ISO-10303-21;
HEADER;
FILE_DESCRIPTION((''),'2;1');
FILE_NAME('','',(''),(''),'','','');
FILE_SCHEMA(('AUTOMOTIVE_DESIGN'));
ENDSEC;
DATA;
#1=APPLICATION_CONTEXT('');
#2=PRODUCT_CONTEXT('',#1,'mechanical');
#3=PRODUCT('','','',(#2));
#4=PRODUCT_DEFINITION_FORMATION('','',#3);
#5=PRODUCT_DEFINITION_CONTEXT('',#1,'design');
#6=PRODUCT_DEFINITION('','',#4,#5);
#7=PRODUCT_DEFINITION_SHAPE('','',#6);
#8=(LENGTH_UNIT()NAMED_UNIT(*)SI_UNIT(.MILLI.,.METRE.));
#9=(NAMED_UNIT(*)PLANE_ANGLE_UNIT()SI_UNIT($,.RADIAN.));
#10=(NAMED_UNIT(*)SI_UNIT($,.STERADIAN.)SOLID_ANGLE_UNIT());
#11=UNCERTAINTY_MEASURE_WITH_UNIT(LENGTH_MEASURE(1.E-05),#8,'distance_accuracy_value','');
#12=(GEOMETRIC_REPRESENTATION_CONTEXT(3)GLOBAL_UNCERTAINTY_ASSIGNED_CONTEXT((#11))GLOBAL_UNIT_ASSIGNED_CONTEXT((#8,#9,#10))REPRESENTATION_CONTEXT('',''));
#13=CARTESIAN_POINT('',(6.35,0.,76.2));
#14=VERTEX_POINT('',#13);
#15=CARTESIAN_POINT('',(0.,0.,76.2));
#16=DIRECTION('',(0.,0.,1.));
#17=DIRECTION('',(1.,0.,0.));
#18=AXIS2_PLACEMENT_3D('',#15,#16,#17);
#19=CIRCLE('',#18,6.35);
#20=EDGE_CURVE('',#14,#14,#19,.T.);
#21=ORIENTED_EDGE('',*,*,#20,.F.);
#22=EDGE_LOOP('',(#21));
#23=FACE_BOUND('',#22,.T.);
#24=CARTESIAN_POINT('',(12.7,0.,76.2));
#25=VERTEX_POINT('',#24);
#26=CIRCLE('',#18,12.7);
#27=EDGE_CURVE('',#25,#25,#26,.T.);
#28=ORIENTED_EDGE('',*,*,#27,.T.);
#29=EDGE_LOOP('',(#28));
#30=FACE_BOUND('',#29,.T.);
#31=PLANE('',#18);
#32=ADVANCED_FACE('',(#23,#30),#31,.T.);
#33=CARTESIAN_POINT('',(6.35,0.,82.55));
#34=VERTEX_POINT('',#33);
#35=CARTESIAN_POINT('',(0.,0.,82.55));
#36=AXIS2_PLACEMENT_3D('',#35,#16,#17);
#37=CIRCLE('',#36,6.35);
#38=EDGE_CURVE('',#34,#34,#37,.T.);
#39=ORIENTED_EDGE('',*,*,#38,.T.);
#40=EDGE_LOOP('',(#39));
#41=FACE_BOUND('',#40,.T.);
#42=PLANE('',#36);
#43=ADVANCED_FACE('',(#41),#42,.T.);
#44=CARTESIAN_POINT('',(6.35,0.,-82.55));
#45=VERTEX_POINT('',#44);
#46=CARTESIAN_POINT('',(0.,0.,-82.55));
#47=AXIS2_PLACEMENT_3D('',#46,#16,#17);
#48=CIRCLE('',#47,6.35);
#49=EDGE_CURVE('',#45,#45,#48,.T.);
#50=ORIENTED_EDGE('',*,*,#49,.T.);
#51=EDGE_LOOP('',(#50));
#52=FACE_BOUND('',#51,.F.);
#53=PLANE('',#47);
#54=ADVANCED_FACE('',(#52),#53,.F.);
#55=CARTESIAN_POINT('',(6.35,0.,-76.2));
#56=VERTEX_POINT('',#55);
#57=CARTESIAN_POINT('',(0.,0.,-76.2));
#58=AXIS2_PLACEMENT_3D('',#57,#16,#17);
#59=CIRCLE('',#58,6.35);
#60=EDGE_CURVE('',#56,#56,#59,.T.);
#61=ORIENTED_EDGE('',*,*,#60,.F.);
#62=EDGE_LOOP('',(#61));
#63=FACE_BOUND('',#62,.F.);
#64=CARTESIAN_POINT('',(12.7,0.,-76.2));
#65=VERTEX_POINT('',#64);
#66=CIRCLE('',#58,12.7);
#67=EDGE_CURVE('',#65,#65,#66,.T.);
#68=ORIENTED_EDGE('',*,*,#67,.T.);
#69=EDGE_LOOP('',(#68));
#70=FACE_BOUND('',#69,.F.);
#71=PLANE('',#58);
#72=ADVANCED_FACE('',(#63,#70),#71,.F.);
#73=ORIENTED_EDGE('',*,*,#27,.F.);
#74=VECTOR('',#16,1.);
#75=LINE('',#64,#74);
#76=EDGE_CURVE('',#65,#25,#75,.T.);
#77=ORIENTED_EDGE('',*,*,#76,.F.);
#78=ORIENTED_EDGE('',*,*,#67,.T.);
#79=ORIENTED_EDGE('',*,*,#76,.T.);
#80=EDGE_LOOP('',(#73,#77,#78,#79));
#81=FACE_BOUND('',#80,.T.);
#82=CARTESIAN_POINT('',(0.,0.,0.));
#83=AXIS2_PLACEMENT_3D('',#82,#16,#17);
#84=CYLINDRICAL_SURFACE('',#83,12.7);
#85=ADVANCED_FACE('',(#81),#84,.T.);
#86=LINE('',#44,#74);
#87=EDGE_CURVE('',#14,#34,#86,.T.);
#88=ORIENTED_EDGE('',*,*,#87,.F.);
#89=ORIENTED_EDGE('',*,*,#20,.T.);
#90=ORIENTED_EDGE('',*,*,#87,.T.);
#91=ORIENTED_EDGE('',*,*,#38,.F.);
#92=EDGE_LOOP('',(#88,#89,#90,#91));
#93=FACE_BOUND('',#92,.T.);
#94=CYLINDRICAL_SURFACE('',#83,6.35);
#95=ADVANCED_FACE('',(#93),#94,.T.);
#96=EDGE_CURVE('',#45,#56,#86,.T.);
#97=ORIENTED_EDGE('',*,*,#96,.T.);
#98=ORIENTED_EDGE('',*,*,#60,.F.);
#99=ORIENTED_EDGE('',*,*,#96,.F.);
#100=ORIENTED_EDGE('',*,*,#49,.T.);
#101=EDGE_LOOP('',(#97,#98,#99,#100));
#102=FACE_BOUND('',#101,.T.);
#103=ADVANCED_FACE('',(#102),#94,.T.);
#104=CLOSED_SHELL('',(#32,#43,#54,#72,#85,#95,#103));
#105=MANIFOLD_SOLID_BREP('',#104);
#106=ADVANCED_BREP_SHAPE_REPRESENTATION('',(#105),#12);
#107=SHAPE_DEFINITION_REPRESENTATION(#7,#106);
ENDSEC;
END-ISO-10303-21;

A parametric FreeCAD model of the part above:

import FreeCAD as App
import Part
import Sketcher

V = App.Vector
Q = App.Units.Quantity

doc = App.newDocument("Part")
body = doc.addObject("PartDesign::Body", "Body")

sketch1 = doc.addObject("Sketcher::SketchObject", "Sketch")
body.addObject(sketch1)
sketch1.AttachmentSupport = (doc.XY_Plane, [""])
sketch1.MapMode = "FlatFace"
sketch1.addGeometry(Part.Circle(V(0, 0, 0), V(0, 0, 1), 13), False)
sketch1.addConstraint(Sketcher.Constraint("Coincident", 0, 3, -1, 1))
sketch1.addConstraint(Sketcher.Constraint("Diameter", 0, Q("1 in")))
pad1 = doc.addObject("PartDesign::Pad", "Pad")
body.addObject(pad1)
pad1.Profile = sketch1
pad1.Length = Q("6 in")
pad1.Midplane = True

sketch2 = doc.addObject("Sketcher::SketchObject", "Sketch001")
body.addObject(sketch2)
sketch2.AttachmentSupport = (doc.XY_Plane, [""])
sketch2.MapMode = "FlatFace"
sketch2.addGeometry(Part.Circle(V(0, 0, 0), V(0, 0, 1), 6), False)
sketch2.addConstraint(Sketcher.Constraint("Coincident", 0, 3, -1, 1))
sketch2.addConstraint(Sketcher.Constraint("Diameter", 0, Q("0.5 in")))
pad2 = doc.addObject("PartDesign::Pad", "Pad001")
body.addObject(pad2)
pad2.Profile = sketch2
pad2.Length = Q("6.5 in")
pad2.Midplane = True

doc.recompute()
